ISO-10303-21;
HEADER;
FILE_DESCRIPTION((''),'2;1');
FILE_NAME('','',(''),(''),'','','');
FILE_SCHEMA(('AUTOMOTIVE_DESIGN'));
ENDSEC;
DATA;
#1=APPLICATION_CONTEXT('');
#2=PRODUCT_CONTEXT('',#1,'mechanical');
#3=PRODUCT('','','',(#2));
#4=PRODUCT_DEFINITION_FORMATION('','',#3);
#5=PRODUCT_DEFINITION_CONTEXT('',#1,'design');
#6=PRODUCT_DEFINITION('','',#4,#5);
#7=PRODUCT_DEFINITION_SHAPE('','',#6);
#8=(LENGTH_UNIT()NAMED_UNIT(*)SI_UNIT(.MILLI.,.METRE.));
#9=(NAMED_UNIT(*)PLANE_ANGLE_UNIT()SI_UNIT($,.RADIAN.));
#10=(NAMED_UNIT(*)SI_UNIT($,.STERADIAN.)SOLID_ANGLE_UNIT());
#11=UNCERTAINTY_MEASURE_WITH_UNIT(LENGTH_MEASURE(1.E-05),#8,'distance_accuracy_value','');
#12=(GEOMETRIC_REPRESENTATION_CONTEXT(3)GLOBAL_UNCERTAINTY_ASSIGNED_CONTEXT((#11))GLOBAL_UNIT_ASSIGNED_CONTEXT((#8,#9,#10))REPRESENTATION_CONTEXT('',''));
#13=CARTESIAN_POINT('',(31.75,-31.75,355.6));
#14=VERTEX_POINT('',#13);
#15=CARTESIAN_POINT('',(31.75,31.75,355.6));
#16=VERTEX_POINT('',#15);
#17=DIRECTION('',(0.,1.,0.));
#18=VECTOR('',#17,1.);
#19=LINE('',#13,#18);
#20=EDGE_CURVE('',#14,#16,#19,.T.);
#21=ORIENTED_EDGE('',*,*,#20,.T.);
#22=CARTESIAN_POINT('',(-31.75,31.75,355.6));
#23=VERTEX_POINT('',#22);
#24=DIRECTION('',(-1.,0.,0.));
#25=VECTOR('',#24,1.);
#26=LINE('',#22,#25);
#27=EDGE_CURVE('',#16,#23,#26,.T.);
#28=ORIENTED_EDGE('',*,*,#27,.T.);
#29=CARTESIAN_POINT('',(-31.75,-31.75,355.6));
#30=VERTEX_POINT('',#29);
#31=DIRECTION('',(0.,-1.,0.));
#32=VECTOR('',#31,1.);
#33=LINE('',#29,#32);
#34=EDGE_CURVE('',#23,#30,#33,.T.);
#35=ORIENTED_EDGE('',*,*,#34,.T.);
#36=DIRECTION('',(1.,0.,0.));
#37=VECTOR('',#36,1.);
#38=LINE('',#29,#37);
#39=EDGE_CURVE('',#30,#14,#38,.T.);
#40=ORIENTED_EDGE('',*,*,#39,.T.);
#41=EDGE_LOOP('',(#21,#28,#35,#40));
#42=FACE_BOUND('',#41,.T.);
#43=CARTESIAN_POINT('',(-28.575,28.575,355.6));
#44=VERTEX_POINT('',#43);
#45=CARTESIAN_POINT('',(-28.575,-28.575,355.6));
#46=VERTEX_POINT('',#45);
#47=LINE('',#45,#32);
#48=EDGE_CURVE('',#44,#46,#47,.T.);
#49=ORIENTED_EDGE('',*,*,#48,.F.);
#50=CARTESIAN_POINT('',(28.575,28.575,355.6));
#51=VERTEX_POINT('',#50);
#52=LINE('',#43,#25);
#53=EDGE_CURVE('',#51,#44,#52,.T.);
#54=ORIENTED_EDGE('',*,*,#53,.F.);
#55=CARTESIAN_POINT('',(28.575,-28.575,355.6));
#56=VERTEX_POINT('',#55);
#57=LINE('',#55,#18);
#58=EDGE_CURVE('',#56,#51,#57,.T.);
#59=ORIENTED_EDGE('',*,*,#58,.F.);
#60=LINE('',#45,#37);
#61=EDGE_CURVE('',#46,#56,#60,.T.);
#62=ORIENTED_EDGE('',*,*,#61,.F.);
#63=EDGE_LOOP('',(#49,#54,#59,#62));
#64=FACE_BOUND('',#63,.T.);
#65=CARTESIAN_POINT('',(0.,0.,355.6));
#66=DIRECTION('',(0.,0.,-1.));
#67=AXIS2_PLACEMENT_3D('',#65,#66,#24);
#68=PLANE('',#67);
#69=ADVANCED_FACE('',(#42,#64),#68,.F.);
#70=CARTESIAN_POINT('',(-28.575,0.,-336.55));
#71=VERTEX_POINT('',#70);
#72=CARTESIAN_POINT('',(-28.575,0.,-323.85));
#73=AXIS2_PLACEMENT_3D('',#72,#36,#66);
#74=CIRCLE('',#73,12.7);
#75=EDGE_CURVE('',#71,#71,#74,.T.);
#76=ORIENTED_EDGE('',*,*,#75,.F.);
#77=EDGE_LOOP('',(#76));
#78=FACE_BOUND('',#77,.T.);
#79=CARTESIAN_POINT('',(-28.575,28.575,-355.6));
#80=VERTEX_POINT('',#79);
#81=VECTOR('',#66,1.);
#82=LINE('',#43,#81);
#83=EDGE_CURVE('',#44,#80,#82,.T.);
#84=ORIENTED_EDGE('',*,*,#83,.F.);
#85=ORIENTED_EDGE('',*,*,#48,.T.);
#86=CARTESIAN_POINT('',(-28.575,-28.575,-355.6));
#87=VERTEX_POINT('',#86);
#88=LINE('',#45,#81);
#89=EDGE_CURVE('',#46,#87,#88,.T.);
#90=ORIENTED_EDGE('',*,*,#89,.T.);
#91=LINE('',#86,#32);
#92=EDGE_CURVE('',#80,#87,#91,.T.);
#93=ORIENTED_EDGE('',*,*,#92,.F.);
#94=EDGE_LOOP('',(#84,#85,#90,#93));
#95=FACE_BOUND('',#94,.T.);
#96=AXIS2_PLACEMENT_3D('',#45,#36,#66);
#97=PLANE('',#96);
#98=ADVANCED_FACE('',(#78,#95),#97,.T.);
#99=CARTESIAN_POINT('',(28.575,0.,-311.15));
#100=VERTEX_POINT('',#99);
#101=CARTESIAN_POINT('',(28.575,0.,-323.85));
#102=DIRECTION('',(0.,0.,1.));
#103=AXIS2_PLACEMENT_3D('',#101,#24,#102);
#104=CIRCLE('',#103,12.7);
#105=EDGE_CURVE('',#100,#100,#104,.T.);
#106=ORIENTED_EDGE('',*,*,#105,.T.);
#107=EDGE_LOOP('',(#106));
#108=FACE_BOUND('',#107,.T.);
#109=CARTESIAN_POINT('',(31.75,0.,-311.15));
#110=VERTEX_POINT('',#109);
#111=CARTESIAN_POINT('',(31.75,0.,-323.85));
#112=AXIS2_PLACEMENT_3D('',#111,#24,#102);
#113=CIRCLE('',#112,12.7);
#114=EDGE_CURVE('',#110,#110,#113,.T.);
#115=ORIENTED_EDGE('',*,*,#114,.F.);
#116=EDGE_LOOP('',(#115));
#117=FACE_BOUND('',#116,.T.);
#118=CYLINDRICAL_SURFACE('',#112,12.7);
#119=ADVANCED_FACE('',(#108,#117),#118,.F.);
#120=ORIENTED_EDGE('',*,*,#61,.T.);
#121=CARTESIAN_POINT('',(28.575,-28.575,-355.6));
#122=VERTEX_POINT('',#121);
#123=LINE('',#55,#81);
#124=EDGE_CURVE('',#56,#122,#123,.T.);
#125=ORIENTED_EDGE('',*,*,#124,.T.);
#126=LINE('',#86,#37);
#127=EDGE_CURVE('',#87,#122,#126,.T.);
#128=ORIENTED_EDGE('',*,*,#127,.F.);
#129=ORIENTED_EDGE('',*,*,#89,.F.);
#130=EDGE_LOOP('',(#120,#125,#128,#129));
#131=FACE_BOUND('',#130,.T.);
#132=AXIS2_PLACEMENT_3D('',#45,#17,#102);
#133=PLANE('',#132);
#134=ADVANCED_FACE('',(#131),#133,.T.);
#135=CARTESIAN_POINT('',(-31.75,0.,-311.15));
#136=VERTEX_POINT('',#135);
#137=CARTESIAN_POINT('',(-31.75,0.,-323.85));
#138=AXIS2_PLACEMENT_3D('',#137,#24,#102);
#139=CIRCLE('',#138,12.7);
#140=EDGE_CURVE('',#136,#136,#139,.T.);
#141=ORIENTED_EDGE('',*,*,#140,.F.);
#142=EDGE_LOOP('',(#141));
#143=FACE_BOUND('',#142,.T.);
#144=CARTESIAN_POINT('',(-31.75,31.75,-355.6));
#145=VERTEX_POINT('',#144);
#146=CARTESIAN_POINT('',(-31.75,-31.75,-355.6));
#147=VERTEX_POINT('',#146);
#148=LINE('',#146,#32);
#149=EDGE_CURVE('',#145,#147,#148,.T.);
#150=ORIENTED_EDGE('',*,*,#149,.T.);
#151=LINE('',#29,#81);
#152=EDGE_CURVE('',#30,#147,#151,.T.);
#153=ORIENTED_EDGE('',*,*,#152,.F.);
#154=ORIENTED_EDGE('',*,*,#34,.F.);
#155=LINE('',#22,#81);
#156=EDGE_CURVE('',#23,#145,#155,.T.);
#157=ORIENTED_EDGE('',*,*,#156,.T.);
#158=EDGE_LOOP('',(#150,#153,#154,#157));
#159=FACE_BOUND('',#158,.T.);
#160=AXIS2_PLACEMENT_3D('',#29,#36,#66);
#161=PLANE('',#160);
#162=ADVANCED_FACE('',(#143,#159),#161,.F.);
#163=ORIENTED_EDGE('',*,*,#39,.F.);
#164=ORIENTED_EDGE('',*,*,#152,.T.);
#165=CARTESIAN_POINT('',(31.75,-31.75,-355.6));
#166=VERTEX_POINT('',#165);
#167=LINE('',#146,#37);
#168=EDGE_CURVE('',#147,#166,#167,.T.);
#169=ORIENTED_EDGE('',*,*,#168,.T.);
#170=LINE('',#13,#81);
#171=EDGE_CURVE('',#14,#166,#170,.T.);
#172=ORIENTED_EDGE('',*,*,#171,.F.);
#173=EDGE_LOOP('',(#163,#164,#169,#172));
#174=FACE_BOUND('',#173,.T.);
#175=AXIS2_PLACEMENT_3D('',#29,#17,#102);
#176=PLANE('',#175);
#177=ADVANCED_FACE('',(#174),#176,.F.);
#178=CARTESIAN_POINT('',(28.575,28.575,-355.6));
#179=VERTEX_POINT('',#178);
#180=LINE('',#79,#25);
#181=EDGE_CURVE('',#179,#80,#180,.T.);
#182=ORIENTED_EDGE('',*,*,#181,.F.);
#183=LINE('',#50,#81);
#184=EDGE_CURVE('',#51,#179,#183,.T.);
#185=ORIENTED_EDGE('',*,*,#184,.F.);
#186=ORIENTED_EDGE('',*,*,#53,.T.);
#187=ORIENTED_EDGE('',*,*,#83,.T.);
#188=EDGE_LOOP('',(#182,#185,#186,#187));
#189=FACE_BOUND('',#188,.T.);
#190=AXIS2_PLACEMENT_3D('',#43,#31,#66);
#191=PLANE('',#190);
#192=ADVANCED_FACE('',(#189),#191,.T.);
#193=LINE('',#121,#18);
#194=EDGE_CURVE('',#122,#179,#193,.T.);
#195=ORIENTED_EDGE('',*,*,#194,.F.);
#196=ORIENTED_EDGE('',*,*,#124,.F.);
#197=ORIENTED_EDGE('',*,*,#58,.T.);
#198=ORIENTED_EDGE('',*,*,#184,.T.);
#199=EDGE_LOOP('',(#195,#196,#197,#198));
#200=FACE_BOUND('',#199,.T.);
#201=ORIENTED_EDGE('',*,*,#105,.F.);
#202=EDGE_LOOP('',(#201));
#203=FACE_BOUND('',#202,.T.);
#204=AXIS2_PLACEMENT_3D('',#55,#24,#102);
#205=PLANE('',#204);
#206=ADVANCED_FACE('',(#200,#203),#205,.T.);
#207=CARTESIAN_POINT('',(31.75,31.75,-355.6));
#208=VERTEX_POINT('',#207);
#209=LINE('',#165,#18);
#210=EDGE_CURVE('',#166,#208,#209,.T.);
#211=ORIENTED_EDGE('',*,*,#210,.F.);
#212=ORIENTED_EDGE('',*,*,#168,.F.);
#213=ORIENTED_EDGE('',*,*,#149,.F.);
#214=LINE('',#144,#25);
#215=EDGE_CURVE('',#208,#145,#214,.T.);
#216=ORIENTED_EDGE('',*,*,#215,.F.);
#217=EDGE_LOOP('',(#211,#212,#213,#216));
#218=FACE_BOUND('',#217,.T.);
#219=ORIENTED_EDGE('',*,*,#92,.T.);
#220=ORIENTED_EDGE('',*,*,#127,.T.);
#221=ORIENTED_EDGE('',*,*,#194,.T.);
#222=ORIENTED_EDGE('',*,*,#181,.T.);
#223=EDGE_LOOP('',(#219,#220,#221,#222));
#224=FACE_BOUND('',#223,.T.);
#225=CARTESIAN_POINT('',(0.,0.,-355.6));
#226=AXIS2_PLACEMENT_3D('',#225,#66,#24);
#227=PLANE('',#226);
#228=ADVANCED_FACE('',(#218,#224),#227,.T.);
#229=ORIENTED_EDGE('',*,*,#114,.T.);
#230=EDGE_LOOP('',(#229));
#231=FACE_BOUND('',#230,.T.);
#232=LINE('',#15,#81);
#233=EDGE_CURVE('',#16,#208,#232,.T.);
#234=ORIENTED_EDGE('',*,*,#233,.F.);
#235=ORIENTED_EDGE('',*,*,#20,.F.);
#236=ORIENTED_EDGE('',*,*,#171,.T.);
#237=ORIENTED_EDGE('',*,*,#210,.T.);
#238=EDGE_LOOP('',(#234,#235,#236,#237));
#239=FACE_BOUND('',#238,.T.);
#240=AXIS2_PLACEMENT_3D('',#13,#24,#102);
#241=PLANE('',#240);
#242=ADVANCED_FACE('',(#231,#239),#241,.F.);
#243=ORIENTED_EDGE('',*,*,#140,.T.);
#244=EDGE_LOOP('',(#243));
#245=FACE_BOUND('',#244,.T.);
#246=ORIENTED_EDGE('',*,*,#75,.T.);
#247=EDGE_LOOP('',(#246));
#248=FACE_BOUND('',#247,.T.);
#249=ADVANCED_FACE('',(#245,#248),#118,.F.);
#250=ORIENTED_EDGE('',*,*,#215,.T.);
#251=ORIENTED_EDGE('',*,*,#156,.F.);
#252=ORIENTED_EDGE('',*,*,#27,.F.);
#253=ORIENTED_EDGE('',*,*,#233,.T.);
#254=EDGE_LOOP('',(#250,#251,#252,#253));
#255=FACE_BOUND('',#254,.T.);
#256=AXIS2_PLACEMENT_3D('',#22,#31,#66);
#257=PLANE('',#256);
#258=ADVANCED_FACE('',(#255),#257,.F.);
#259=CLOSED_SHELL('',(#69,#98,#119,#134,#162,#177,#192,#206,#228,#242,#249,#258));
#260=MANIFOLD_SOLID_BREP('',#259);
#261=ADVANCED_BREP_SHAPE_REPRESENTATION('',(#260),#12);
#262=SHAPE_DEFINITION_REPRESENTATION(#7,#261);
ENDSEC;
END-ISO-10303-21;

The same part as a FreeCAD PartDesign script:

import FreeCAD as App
import Part
import Sketcher
Q = App.Units.Quantity


def add_polygon(sketch, points):
    """Adds a closed chain of lines whose ends are joined by coincident constraints."""
    first, n = sketch.GeometryCount, len(points)
    for a, b in zip(points, points[1:] + points[:1]):
        sketch.addGeometry(Part.LineSegment(App.Vector(*a, 0), App.Vector(*b, 0)), False)
    for i in range(n):
        sketch.addConstraint(Sketcher.Constraint("Coincident", first + i, 2, first + (i + 1) % n, 1))

doc = App.newDocument("Part")
body = doc.addObject("PartDesign::Body", "Body")

# Sketch on XY plane
sketch1 = body.newObject("Sketcher::SketchObject", "Sketch")
sketch1.AttachmentSupport = (doc.getObject("XY_Plane"), [""])
sketch1.MapMode = "FlatFace"
add_polygon(sketch1, [(-31.75, 31.75), (-31.75, -31.75), (31.75, -31.75), (31.75, 31.75)])  # lines 0-3
add_polygon(sketch1, [(28.575, -28.575), (-28.575, -28.575), (-28.575, 28.575), (28.575, 28.575)])  # lines 4-7
sketch1.addConstraint(Sketcher.Constraint("Vertical", 0))
sketch1.addConstraint(Sketcher.Constraint("Horizontal", 1))
sketch1.addConstraint(Sketcher.Constraint("Vertical", 2))
sketch1.addConstraint(Sketcher.Constraint("Horizontal", 3))
sketch1.addConstraint(Sketcher.Constraint("Horizontal", 4))
sketch1.addConstraint(Sketcher.Constraint("Vertical", 5))
sketch1.addConstraint(Sketcher.Constraint("Horizontal", 6))
sketch1.addConstraint(Sketcher.Constraint("Vertical", 7))
sketch1.addConstraint(Sketcher.Constraint("Symmetric", 0, 2, 2, 2, -1, 1))
sketch1.addConstraint(Sketcher.Constraint("Symmetric", 4, 2, 6, 2, -1, 1))
sketch1.addConstraint(Sketcher.Constraint("Equal", 3, 0))
sketch1.addConstraint(Sketcher.Constraint("Equal", 6, 5))
sketch1.addConstraint(Sketcher.Constraint("DistanceX", 1, 1, 1, 2, Q("2.5 in")))
sketch1.addConstraint(Sketcher.Constraint("DistanceX", 4, 2, 4, 1, Q("2.25 in")))
pad1 = body.newObject("PartDesign::Pad", "Pad")
pad1.Profile = sketch1
pad1.Length = Q("28 in")
pad1.Midplane = True

# Sketch on YZ plane
sketch2 = body.newObject("Sketcher::SketchObject", "Sketch001")
sketch2.AttachmentSupport = (doc.getObject("YZ_Plane"), [""])
sketch2.MapMode = "FlatFace"
sketch2.AttachmentOffset = App.Placement(App.Vector(0, 0, -1.25 * 25.4), App.Rotation())
sketch2.addGeometry(Part.Circle(App.Vector(0, -323.85, 0), App.Vector(0, 0, 1), 12.7), False)
sketch2.addConstraint(Sketcher.Constraint("PointOnObject", 0, 3, -2))
sketch2.addConstraint(Sketcher.Constraint("Diameter", 0, Q("1 in")))
sketch2.addConstraint(Sketcher.Constraint("DistanceY", 0, 3, -1, 1, Q("12.75 in")))
pocket1 = body.newObject("PartDesign::Pocket", "Pocket")
pocket1.Profile = sketch2
pocket1.Type = "ThroughAll"
pocket1.Reversed = True

doc.recompute()
